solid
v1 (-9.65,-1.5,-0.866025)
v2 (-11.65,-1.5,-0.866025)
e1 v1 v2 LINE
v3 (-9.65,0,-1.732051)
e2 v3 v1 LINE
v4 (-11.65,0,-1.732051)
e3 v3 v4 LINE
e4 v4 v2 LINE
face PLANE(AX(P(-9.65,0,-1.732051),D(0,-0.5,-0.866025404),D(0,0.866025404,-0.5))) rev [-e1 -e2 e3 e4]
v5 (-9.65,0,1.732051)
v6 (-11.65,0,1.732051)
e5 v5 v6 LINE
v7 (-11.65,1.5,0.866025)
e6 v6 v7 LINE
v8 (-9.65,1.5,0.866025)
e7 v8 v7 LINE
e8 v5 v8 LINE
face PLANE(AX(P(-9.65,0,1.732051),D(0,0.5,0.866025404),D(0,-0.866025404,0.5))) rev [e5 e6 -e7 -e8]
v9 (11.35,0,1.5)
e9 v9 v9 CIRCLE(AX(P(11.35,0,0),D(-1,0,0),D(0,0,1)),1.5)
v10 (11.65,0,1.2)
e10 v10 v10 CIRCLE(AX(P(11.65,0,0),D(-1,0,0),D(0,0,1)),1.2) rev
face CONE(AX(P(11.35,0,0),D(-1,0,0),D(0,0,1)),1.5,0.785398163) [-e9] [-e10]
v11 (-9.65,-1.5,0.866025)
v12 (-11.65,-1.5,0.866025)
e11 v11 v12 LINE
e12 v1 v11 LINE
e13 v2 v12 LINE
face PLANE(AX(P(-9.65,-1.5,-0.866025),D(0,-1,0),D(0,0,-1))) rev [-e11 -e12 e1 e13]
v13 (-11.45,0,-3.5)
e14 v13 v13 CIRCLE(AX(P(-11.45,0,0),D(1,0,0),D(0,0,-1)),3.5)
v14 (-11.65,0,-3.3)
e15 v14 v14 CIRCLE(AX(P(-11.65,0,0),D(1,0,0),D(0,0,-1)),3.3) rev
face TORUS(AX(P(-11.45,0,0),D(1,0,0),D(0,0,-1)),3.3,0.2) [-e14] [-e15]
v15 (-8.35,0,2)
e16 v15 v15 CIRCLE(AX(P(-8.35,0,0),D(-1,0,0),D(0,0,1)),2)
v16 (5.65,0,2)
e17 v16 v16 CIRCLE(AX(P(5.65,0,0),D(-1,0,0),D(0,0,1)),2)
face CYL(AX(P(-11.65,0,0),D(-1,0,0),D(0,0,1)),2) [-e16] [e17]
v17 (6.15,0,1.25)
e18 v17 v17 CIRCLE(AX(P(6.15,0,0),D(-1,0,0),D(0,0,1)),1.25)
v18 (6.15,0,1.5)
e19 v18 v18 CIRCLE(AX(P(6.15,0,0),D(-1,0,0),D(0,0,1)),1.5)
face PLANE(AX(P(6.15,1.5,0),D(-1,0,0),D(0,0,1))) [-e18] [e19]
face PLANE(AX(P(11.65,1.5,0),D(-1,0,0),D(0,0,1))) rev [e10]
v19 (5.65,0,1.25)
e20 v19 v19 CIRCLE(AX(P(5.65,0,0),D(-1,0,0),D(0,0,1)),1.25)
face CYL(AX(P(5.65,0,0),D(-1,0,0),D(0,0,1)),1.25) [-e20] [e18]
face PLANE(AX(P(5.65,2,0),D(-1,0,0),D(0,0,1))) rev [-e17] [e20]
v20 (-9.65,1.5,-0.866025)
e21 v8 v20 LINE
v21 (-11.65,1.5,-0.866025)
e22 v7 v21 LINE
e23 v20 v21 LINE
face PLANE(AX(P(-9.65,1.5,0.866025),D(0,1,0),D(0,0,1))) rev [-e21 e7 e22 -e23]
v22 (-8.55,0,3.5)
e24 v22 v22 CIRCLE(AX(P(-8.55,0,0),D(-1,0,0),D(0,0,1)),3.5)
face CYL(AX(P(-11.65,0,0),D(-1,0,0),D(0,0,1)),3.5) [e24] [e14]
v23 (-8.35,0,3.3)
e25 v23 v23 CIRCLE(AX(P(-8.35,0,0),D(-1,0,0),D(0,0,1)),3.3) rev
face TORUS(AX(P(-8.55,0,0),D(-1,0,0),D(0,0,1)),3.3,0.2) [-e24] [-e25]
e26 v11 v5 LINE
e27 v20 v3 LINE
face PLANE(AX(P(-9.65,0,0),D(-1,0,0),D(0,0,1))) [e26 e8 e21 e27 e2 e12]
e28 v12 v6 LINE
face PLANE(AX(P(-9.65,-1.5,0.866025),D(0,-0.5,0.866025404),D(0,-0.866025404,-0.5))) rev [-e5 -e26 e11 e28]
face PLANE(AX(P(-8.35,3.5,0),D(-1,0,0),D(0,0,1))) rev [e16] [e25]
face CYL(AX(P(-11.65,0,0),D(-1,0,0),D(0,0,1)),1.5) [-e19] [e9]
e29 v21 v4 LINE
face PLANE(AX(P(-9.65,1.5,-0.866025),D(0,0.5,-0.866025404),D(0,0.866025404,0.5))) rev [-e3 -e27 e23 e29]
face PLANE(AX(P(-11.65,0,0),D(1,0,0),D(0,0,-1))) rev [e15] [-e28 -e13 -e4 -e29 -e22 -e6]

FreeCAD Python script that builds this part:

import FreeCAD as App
import Part
import Sketcher
Q = App.Units.Quantity


def edges_at(feature, points):
    """Names of the edges that pass closest to the given points."""
    edges = feature.Shape.Edges
    near = lambda p: min(range(len(edges)), key=lambda i: edges[i].distToShape(Part.Vertex(*p))[0])
    return sorted({f"Edge{near(p) + 1}" for p in points})

doc = App.newDocument("Part")
body = doc.addObject("PartDesign::Body", "Body")

sketch1 = body.newObject("Sketcher::SketchObject", "Sketch")
sketch1.AttachmentSupport = (doc.getObject("XY_Plane"), [""])
sketch1.MapMode = "FlatFace"
sketch1.addGeometry([
    Part.LineSegment(App.Vector(-11.7, 3.5, 0), App.Vector(-11.7, 0, 0)),
    Part.LineSegment(App.Vector(-11.7, 0, 0), App.Vector(11.7, 0, 0)),
    Part.LineSegment(App.Vector(11.7, 0, 0), App.Vector(11.7, 1.5, 0)),
    Part.LineSegment(App.Vector(11.7, 1.5, 0), App.Vector(5.7, 1.5, 0)),
    Part.LineSegment(App.Vector(5.7, 1.5, 0), App.Vector(5.7, 2, 0)),
    Part.LineSegment(App.Vector(5.7, 2, 0), App.Vector(-8.3, 2, 0)),
    Part.LineSegment(App.Vector(-8.3, 2, 0), App.Vector(-8.3, 3.5, 0)),
    Part.LineSegment(App.Vector(-8.3, 3.5, 0), App.Vector(-11.7, 3.5, 0)),
], False)
sketch1.addConstraint([
    Sketcher.Constraint("Coincident", 0, 2, 1, 1),
    Sketcher.Constraint("Coincident", 1, 2, 2, 1),
    Sketcher.Constraint("Coincident", 2, 2, 3, 1),
    Sketcher.Constraint("Coincident", 3, 2, 4, 1),
    Sketcher.Constraint("Coincident", 4, 2, 5, 1),
    Sketcher.Constraint("Coincident", 5, 2, 6, 1),
    Sketcher.Constraint("Coincident", 6, 2, 7, 1),
    Sketcher.Constraint("Coincident", 7, 2, 0, 1),
    Sketcher.Constraint("Vertical", 0),
    Sketcher.Constraint("Horizontal", 1),
    Sketcher.Constraint("Vertical", 2),
    Sketcher.Constraint("Horizontal", 3),
    Sketcher.Constraint("Vertical", 4),
    Sketcher.Constraint("Horizontal", 5),
    Sketcher.Constraint("Vertical", 6),
    Sketcher.Constraint("Horizontal", 7),
    Sketcher.Constraint("Symmetric", 0, 2, 1, 2, -1, 1),
    Sketcher.Constraint("Equal", 2, 6),
    Sketcher.Constraint("DistanceX", 3, 2, 3, 1, 6.0),
    Sketcher.Constraint("DistanceX", 5, 2, 5, 1, 14.0),
    Sketcher.Constraint("DistanceX", 1, 1, 1, 2, 23.3),
    Sketcher.Constraint("DistanceY", 0, 2, 0, 1, 3.5),
    Sketcher.Constraint("DistanceY", 2, 1, 2, 2, 1.5),
])
revolution = body.newObject("PartDesign::Revolution", "Revolution")
revolution.Profile = sketch1
revolution.ReferenceAxis = (sketch1, ["H_Axis"])
revolution.Angle = 360
doc.recompute()

fillet = body.newObject("PartDesign::Fillet", "Fillet")
fillet.Base = (revolution, edges_at(revolution, [(-8.35, 0, -3.5), (-11.65, 0, -3.5)]))
fillet.Radius = 0.2
doc.recompute()

chamfer = body.newObject("PartDesign::Chamfer", "Chamfer")
chamfer.Base = (fillet, edges_at(fillet, [(11.65, 0, -1.5)]))
chamfer.Size = 0.3

sketch2 = body.newObject("Sketcher::SketchObject", "Sketch001")
sketch2.AttachmentSupport = (doc.getObject("XY_Plane"), [""])
sketch2.MapMode = "FlatFace"
sketch2.addGeometry([
    Part.LineSegment(App.Vector(5.65, 1.5, 0), App.Vector(5.65, 1.25, 0)),
    Part.LineSegment(App.Vector(5.65, 1.25, 0), App.Vector(6.15, 1.25, 0)),
    Part.LineSegment(App.Vector(6.15, 1.25, 0), App.Vector(6.15, 1.5, 0)),
    Part.LineSegment(App.Vector(6.15, 1.5, 0), App.Vector(5.65, 1.5, 0)),
], False)
sketch2.addConstraint([
    Sketcher.Constraint("Coincident", 0, 2, 1, 1),
    Sketcher.Constraint("Coincident", 1, 2, 2, 1),
    Sketcher.Constraint("Coincident", 2, 2, 3, 1),
    Sketcher.Constraint("Coincident", 3, 2, 0, 1),
    Sketcher.Constraint("Vertical", 0),
    Sketcher.Constraint("Horizontal", 1),
    Sketcher.Constraint("Vertical", 2),
    Sketcher.Constraint("Horizontal", 3),
    Sketcher.Constraint("DistanceX", 1, 1, 1, 2, 0.5),
    Sketcher.Constraint("DistanceY", 0, 2, 0, 1, 0.25),
    Sketcher.Constraint("DistanceY", -1, 1, 2, 2, 1.5),
    Sketcher.Constraint("DistanceX", -1, 1, 0, 2, 5.65),
])
groove = body.newObject("PartDesign::Groove", "Groove")
groove.Profile = sketch2
groove.ReferenceAxis = (sketch2, ["H_Axis"])
groove.Angle = 360

sketch3 = body.newObject("Sketcher::SketchObject", "Sketch002")
sketch3.AttachmentSupport = (doc.getObject("YZ_Plane"), [""])
sketch3.MapMode = "FlatFace"
sketch3.AttachmentOffset = App.Placement(App.Vector(0, 0, -11.65), App.Rotation())
sketch3.addGeometry([
    Part.LineSegment(App.Vector(0, 1.7, 0), App.Vector(1.5, 0.9, 0)),
    Part.LineSegment(App.Vector(1.5, 0.9, 0), App.Vector(1.5, -0.9, 0)),
    Part.LineSegment(App.Vector(1.5, -0.9, 0), App.Vector(0, -1.7, 0)),
    Part.LineSegment(App.Vector(0, -1.7, 0), App.Vector(-1.5, -0.9, 0)),
    Part.LineSegment(App.Vector(-1.5, -0.9, 0), App.Vector(-1.5, 0.9, 0)),
    Part.LineSegment(App.Vector(-1.5, 0.9, 0), App.Vector(0, 1.7, 0)),
], False)
sketch3.addConstraint([
    Sketcher.Constraint("Coincident", 0, 2, 1, 1),
    Sketcher.Constraint("Coincident", 1, 2, 2, 1),
    Sketcher.Constraint("Coincident", 2, 2, 3, 1),
    Sketcher.Constraint("Coincident", 3, 2, 4, 1),
    Sketcher.Constraint("Coincident", 4, 2, 5, 1),
    Sketcher.Constraint("Coincident", 5, 2, 0, 1),
    Sketcher.Constraint("Vertical", 1),
    Sketcher.Constraint("Vertical", 4),
    Sketcher.Constraint("Symmetric", 0, 2, 3, 2, -1, 1),
    Sketcher.Constraint("Symmetric", 2, 2, 5, 2, -1, 1),
    Sketcher.Constraint("PointOnObject", 2, 2, -2),
    Sketcher.Constraint("Parallel", 2, 5),
    Sketcher.Constraint("Horizontal", 1, 2, 3, 2),
    Sketcher.Constraint("Angle", 0, Q("-30 deg")),
    Sketcher.Constraint("DistanceX", 3, 2, 1, 2, 3.0),
    Sketcher.Constraint("DistanceY", 1, 2, 1, 1, 1.732051),
])
pocket1 = body.newObject("PartDesign::Pocket", "Pocket")
pocket1.Profile = sketch3
pocket1.Length = 2
pocket1.Reversed = True

doc.recompute()
